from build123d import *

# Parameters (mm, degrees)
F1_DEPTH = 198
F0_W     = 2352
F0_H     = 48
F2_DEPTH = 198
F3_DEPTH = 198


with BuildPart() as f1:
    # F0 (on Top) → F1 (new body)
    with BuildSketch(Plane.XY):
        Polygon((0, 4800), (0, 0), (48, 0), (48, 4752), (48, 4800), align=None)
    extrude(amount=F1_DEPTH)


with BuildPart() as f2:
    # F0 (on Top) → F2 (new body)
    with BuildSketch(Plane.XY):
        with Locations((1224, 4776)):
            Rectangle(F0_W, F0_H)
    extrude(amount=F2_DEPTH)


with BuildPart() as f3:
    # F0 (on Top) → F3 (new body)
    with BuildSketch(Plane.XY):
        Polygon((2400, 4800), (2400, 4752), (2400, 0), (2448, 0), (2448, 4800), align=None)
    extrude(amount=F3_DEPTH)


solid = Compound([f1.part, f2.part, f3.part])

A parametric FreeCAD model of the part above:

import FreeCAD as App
import Part
import Sketcher
from FreeCAD import Vector
Q = App.Units.Quantity

doc = App.newDocument("Part")
body = doc.addObject("PartDesign::Body", "Body")

# Sketch on XY plane
sketch1 = body.newObject("Sketcher::SketchObject", "Sketch")
sketch1.AttachmentSupport = (doc.getObject("XY_Plane"), [""])
sketch1.MapMode = "FlatFace"
sketch1.addGeometry([
    Part.LineSegment(Vector(0, 4800, 0), Vector(0, 0, 0)),
    Part.LineSegment(Vector(0, 0, 0), Vector(48, 0, 0)),
    Part.LineSegment(Vector(48, 0, 0), Vector(48, 4800, 0)),
    Part.LineSegment(Vector(48, 4800, 0), Vector(0, 4800, 0)),
], False)
sketch1.addConstraint([
    Sketcher.Constraint("Coincident", 0, 2, 1, 1),
    Sketcher.Constraint("Coincident", 1, 2, 2, 1),
    Sketcher.Constraint("Coincident", 2, 2, 3, 1),
    Sketcher.Constraint("Coincident", 3, 2, 0, 1),
    Sketcher.Constraint("Vertical", 0),
    Sketcher.Constraint("Horizontal", 1),
    Sketcher.Constraint("Vertical", 2),
    Sketcher.Constraint("Horizontal", 3),
    Sketcher.Constraint("Coincident", 0, 2, -1, 1),
    Sketcher.Constraint("DistanceX", 1, 1, 1, 2, Q("48 mm")),
    Sketcher.Constraint("DistanceY", 0, 2, 0, 1, Q("4800 mm")),
])
pad1 = body.newObject("PartDesign::Pad", "Pad")
pad1.Profile = sketch1
pad1.Length = 198
body2 = doc.addObject("PartDesign::Body", "Body001")

# Sketch on XY plane
sketch2 = body2.newObject("Sketcher::SketchObject", "Sketch001")
sketch2.AttachmentSupport = (doc.getObject("XY_Plane001"), [""])
sketch2.MapMode = "FlatFace"
sketch2.addGeometry([
    Part.LineSegment(Vector(48, 4800, 0), Vector(48, 4752, 0)),
    Part.LineSegment(Vector(48, 4752, 0), Vector(2400, 4752, 0)),
    Part.LineSegment(Vector(2400, 4752, 0), Vector(2400, 4800, 0)),
    Part.LineSegment(Vector(2400, 4800, 0), Vector(48, 4800, 0)),
], False)
sketch2.addConstraint([
    Sketcher.Constraint("Coincident", 0, 2, 1, 1),
    Sketcher.Constraint("Coincident", 1, 2, 2, 1),
    Sketcher.Constraint("Coincident", 2, 2, 3, 1),
    Sketcher.Constraint("Coincident", 3, 2, 0, 1),
    Sketcher.Constraint("Vertical", 0),
    Sketcher.Constraint("Horizontal", 1),
    Sketcher.Constraint("Vertical", 2),
    Sketcher.Constraint("Horizontal", 3),
    Sketcher.Constraint("DistanceX", 1, 1, 1, 2, Q("2352 mm")),
    Sketcher.Constraint("DistanceY", 0, 2, 0, 1, Q("48 mm")),
    Sketcher.Constraint("DistanceX", -1, 1, 0, 2, Q("48 mm")),
    Sketcher.Constraint("DistanceY", -1, 1, 0, 2, Q("4752 mm")),
])
pad2 = body2.newObject("PartDesign::Pad", "Pad001")
pad2.Profile = sketch2
pad2.Length = 198
body3 = doc.addObject("PartDesign::Body", "Body002")

# Sketch on XY plane
sketch3 = body3.newObject("Sketcher::SketchObject", "Sketch002")
sketch3.AttachmentSupport = (doc.getObject("XY_Plane002"), [""])
sketch3.MapMode = "FlatFace"
sketch3.addGeometry([
    Part.LineSegment(Vector(2400, 4800, 0), Vector(2400, 0, 0)),
    Part.LineSegment(Vector(2400, 0, 0), Vector(2448, 0, 0)),
    Part.LineSegment(Vector(2448, 0, 0), Vector(2448, 4800, 0)),
    Part.LineSegment(Vector(2448, 4800, 0), Vector(2400, 4800, 0)),
], False)
sketch3.addConstraint([
    Sketcher.Constraint("Coincident", 0, 2, 1, 1),
    Sketcher.Constraint("Coincident", 1, 2, 2, 1),
    Sketcher.Constraint("Coincident", 2, 2, 3, 1),
    Sketcher.Constraint("Coincident", 3, 2, 0, 1),
    Sketcher.Constraint("Vertical", 0),
    Sketcher.Constraint("Horizontal", 1),
    Sketcher.Constraint("Vertical", 2),
    Sketcher.Constraint("Horizontal", 3),
    Sketcher.Constraint("PointOnObject", 0, 2, -1),
    Sketcher.Constraint("DistanceX", 1, 1, 1, 2, Q("48 mm")),
    Sketcher.Constraint("DistanceY", 0, 2, 0, 1, Q("4800 mm")),
    Sketcher.Constraint("DistanceX", -1, 1, 0, 2, Q("2400 mm")),
])
pad3 = body3.newObject("PartDesign::Pad", "Pad002")
pad3.Profile = sketch3
pad3.Length = 198

doc.recompute()
